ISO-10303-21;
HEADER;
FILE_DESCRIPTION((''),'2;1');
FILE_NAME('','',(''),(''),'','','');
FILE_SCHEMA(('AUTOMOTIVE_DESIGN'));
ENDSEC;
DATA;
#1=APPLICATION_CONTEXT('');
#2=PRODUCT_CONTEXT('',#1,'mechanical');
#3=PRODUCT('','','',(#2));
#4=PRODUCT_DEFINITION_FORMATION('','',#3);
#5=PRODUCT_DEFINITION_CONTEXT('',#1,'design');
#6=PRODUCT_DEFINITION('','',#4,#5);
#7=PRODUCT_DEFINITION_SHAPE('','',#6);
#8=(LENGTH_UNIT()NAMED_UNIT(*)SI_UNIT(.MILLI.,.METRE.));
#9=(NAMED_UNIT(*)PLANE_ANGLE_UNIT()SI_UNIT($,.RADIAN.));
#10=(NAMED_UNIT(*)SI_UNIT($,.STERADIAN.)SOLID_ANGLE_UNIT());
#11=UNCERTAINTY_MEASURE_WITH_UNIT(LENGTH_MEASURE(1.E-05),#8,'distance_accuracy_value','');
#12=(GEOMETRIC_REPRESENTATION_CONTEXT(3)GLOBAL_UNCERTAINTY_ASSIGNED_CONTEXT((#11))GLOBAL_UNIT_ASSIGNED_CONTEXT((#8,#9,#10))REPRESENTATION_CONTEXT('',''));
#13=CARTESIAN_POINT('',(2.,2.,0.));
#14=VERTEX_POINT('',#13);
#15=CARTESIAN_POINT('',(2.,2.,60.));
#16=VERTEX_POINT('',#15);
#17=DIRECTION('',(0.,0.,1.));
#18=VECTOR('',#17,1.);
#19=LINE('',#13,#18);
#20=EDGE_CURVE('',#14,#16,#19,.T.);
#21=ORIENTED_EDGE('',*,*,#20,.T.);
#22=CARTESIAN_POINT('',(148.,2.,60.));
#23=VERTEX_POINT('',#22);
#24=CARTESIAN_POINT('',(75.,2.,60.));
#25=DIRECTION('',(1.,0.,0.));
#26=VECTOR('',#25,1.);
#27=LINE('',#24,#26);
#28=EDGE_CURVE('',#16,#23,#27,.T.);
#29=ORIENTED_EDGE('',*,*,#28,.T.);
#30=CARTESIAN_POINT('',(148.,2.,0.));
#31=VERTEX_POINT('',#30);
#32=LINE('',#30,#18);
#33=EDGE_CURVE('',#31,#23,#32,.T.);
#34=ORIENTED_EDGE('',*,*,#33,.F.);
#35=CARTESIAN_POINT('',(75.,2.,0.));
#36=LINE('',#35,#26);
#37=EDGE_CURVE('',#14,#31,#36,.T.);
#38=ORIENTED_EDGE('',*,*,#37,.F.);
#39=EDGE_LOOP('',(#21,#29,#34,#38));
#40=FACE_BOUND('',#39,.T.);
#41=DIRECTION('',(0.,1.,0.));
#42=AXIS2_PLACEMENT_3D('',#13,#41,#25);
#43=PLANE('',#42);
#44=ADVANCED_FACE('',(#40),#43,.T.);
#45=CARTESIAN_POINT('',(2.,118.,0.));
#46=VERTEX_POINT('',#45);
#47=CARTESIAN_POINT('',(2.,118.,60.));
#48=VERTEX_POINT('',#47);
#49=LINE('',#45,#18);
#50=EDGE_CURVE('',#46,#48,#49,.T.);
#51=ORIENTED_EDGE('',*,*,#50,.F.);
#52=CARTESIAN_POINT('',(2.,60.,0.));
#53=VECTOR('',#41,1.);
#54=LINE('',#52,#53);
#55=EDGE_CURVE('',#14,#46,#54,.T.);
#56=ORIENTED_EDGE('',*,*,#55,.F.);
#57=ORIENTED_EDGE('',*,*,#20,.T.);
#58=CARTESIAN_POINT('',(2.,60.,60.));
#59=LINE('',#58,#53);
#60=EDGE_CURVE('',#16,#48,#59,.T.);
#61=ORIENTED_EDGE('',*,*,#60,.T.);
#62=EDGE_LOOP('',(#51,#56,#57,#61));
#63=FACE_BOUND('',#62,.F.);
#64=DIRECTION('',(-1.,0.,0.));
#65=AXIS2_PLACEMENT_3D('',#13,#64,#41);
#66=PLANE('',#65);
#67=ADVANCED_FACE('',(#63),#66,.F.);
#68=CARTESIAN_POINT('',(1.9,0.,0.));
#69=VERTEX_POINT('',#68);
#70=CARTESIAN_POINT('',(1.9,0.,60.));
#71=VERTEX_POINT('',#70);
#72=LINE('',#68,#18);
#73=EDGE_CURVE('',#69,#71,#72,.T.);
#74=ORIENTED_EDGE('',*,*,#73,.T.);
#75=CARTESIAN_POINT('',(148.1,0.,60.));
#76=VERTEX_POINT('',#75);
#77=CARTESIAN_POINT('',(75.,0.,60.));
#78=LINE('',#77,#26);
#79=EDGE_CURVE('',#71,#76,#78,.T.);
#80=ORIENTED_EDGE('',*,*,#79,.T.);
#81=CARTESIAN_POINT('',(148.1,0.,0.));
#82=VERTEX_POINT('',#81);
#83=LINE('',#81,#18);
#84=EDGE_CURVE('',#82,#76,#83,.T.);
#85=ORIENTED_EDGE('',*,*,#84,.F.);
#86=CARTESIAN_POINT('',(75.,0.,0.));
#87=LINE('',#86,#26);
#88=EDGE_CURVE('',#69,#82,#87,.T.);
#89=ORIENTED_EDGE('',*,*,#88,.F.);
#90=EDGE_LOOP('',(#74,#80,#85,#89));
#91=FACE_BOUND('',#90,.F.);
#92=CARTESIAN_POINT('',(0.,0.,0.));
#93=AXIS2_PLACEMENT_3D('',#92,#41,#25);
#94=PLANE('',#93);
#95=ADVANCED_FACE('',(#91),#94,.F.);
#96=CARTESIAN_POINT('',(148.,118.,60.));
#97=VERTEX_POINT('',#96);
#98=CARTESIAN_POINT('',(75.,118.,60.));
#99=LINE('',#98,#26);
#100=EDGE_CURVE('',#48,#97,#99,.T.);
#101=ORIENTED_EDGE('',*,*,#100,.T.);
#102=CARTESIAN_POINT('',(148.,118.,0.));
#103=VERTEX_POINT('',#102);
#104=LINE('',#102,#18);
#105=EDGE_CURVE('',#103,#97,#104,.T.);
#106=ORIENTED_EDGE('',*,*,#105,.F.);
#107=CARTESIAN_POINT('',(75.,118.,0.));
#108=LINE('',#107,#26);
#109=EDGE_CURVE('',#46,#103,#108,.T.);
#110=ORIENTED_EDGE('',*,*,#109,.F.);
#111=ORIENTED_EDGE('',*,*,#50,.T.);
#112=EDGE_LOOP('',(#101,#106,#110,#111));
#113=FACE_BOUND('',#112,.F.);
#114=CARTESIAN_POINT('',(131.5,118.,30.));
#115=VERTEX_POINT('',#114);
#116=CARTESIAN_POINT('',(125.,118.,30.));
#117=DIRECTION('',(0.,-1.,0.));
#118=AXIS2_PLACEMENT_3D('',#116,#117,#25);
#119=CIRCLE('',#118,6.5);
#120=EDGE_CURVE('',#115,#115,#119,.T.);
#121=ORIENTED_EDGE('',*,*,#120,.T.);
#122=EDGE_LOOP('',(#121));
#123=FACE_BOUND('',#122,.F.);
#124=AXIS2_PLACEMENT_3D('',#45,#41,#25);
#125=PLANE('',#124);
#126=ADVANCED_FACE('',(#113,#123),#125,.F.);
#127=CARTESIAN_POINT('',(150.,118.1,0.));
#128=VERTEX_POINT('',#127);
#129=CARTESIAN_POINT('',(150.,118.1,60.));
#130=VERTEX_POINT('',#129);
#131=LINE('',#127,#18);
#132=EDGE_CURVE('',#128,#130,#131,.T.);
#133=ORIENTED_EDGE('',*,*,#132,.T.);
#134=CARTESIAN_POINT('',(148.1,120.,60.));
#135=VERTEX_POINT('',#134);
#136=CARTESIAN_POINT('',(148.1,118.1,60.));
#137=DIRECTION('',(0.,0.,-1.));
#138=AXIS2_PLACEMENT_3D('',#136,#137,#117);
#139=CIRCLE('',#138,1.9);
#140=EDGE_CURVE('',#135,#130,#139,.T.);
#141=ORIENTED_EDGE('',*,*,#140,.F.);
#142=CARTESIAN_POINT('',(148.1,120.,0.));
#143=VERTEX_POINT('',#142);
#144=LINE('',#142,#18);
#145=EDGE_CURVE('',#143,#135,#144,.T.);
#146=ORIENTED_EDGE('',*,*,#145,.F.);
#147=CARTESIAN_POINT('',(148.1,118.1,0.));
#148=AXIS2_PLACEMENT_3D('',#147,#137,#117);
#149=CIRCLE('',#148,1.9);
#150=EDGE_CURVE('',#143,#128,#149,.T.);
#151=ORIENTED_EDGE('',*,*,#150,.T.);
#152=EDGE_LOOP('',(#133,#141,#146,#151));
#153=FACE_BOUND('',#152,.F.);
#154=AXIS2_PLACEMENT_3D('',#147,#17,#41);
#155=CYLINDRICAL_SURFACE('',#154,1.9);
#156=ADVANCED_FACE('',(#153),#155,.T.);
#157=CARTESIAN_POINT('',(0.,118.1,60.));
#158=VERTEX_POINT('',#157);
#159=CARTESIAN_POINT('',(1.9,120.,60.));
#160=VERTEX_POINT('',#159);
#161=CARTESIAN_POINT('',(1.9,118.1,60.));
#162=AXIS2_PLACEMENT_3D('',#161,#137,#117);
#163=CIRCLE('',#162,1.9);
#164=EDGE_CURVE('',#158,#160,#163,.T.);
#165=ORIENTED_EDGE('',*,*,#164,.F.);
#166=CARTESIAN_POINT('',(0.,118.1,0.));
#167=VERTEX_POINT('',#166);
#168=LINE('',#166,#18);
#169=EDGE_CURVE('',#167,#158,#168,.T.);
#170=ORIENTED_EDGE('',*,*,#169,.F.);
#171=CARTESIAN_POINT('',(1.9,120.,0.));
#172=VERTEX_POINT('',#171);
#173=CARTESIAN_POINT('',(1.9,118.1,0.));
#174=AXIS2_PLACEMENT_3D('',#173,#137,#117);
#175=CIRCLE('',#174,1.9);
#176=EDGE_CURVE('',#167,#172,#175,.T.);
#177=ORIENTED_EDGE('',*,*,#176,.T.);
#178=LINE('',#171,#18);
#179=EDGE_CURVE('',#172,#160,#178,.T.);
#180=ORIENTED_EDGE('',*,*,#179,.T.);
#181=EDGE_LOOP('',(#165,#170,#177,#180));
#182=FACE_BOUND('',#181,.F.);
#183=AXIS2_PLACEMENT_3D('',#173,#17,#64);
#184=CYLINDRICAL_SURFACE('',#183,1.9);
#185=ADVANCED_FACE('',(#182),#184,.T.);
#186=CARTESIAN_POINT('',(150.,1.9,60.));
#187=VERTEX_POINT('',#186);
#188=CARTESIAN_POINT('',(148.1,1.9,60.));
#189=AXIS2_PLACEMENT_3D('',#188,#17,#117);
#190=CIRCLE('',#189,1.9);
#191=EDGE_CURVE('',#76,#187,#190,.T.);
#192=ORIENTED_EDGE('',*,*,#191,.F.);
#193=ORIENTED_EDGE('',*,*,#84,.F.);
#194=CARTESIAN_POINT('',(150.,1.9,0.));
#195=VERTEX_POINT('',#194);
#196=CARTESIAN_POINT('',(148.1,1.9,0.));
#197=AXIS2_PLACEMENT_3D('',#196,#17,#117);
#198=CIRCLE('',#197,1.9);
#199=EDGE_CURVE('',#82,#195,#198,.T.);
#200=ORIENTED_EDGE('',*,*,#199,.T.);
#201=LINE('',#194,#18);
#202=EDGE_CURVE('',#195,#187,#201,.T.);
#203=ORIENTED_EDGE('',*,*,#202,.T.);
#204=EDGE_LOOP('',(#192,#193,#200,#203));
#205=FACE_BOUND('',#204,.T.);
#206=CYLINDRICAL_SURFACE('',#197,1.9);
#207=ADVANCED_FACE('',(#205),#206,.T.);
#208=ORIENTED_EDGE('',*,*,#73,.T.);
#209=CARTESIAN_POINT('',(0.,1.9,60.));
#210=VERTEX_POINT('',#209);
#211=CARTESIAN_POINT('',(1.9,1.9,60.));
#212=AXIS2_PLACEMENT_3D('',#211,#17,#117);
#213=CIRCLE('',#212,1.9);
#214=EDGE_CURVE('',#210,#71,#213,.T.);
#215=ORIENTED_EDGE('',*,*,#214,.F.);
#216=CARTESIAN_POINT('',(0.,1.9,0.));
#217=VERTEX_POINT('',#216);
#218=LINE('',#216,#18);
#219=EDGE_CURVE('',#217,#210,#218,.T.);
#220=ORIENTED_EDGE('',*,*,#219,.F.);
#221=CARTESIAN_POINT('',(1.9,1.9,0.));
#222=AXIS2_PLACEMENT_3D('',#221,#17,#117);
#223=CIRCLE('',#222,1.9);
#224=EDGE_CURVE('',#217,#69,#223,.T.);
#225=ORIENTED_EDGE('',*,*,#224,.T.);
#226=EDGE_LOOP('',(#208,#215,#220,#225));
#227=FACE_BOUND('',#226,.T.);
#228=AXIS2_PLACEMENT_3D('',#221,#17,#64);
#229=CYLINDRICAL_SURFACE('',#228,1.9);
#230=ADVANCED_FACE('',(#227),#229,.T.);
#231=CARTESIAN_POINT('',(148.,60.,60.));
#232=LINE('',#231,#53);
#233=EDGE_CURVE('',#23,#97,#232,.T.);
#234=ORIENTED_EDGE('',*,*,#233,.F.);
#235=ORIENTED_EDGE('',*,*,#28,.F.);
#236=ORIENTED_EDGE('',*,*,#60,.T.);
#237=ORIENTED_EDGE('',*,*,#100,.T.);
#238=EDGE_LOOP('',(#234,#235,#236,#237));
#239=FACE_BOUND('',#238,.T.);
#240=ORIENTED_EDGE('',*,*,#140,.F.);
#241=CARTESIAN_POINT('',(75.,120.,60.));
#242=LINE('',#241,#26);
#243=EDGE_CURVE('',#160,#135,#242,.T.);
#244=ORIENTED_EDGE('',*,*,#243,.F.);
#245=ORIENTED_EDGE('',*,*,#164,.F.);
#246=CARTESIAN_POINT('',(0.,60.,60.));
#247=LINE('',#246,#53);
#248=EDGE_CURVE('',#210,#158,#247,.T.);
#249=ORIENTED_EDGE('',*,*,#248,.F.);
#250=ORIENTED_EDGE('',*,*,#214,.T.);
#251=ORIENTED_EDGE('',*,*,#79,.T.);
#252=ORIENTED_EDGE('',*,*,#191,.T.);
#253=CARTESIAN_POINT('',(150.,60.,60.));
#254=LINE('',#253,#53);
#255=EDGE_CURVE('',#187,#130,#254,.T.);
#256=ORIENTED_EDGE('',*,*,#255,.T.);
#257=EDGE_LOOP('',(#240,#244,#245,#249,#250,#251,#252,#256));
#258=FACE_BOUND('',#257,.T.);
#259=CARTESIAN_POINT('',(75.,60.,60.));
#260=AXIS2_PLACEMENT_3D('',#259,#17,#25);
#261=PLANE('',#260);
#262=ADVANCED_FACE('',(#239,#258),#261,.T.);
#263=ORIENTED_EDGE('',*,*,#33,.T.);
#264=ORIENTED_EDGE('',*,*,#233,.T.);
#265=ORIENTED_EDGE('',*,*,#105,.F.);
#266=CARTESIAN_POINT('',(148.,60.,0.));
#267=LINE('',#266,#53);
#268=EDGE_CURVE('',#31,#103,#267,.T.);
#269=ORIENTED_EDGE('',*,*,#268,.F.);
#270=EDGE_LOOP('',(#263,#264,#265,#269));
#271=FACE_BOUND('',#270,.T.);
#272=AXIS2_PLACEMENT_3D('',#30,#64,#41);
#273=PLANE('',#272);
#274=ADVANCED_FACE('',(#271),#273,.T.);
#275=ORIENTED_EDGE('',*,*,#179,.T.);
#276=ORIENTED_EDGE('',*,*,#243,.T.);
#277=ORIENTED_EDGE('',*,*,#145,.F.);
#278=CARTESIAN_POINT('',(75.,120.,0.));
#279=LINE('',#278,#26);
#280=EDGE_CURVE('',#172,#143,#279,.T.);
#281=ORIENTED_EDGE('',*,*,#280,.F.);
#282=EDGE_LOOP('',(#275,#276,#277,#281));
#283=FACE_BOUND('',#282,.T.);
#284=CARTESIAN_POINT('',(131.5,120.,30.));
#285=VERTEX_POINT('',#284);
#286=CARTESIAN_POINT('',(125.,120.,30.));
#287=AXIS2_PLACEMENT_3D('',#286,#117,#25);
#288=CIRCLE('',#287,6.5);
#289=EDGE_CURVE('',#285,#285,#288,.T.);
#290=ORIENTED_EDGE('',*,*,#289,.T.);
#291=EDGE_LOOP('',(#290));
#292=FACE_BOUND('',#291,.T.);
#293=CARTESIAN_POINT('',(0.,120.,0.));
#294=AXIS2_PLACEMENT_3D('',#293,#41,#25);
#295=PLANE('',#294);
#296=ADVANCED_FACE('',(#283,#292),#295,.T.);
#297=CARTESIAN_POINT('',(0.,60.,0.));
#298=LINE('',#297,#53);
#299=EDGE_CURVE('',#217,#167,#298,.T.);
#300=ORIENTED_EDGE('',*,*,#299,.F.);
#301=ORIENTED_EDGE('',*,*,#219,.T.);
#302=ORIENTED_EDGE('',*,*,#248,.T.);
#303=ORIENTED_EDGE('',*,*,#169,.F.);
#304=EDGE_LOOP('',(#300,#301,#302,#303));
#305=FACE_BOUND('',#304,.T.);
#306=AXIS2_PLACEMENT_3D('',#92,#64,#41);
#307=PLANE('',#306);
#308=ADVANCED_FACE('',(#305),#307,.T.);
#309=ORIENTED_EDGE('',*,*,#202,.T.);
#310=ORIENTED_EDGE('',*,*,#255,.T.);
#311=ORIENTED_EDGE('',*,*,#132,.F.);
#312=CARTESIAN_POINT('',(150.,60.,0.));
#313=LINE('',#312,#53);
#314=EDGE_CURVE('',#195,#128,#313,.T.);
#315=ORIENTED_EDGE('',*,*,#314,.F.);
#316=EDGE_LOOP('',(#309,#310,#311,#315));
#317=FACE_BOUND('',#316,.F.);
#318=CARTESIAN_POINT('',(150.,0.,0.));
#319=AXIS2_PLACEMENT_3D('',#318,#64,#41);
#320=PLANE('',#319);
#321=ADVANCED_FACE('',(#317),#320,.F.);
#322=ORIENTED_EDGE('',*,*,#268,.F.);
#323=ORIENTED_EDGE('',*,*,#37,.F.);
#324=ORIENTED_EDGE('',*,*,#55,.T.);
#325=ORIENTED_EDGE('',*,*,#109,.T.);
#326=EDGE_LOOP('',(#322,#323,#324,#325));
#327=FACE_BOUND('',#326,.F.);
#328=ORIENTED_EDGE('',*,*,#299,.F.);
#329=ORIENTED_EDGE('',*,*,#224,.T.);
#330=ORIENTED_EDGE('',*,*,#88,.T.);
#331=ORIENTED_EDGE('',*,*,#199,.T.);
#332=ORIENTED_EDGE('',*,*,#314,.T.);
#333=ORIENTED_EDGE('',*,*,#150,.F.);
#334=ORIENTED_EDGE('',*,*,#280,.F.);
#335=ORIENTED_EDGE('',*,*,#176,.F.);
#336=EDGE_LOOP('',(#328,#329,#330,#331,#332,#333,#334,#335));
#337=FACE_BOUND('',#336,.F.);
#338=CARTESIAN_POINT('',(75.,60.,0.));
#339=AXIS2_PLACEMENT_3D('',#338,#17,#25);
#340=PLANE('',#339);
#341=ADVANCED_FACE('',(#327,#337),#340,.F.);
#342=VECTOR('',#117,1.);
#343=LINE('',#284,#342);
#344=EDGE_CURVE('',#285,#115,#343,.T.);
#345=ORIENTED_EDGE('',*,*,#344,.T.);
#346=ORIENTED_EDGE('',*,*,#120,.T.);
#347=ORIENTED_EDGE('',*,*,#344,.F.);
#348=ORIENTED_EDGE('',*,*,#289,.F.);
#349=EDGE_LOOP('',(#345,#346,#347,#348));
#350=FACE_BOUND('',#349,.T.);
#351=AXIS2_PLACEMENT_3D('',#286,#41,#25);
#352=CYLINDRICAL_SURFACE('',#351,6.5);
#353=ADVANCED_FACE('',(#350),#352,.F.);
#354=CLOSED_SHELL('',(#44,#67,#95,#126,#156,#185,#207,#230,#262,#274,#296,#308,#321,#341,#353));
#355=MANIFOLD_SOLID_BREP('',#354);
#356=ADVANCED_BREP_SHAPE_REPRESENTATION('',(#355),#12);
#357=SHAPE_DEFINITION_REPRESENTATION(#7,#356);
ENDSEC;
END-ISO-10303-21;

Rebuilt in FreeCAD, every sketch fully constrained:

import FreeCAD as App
import Part
import Sketcher
Q = App.Units.Quantity


def edges_at(feature, points):
    """Names of the edges that pass closest to the given points."""
    edges = feature.Shape.Edges
    near = lambda p: min(range(len(edges)), key=lambda i: edges[i].distToShape(Part.Vertex(*p))[0])
    return sorted({f"Edge{near(p) + 1}" for p in points})

doc = App.newDocument("Part")
params = doc.addObject("Spreadsheet::Sheet", "Params")
for row, (alias, value) in enumerate([
    ("sketch1_width", "150 mm"),
    ("sketch1_height", "120 mm"),
    ("pad1_length", "60 mm"),
    ("sketch2_width", "146 mm"),
    ("sketch2_height", "116 mm"),
    ("pocket1_length", "60 mm"),
    ("sketch3_diameter", "13 mm"),
    ("pocket2_length", "2 mm"),
    ("fillet_radius", "1.9 mm"),
], start=1):
    params.set(f"A{row}", alias)
    params.set(f"B{row}", "=" + value)
    params.setAlias(f"B{row}", alias)

body = doc.addObject("PartDesign::Body", "Body")

# Sketch on XY plane
sketch1 = body.newObject("Sketcher::SketchObject", "Sketch")
sketch1.AttachmentSupport = (doc.getObject("XY_Plane"), [""])
sketch1.MapMode = "FlatFace"
sketch1.addGeometry(Part.LineSegment(App.Vector(0, 120, 0), App.Vector(0, 0, 0)), False)
sketch1.addGeometry(Part.LineSegment(App.Vector(0, 0, 0), App.Vector(150, 0, 0)), False)
sketch1.addGeometry(Part.LineSegment(App.Vector(150, 0, 0), App.Vector(150, 120, 0)), False)
sketch1.addGeometry(Part.LineSegment(App.Vector(150, 120, 0), App.Vector(0, 120, 0)), False)
sketch1.addConstraint(Sketcher.Constraint("Coincident", 0, 2, 1, 1))
sketch1.addConstraint(Sketcher.Constraint("Coincident", 1, 2, 2, 1))
sketch1.addConstraint(Sketcher.Constraint("Coincident", 2, 2, 3, 1))
sketch1.addConstraint(Sketcher.Constraint("Coincident", 3, 2, 0, 1))
sketch1.addConstraint(Sketcher.Constraint("Vertical", 0))
sketch1.addConstraint(Sketcher.Constraint("Horizontal", 1))
sketch1.addConstraint(Sketcher.Constraint("Vertical", 2))
sketch1.addConstraint(Sketcher.Constraint("Horizontal", 3))
sketch1.addConstraint(Sketcher.Constraint("Coincident", 0, 2, -1, 1))
sketch1.addConstraint(Sketcher.Constraint("DistanceX", 1, 1, 1, 2, Q("150 mm")))
sketch1.addConstraint(Sketcher.Constraint("DistanceY", 0, 2, 0, 1, Q("120 mm")))
sketch1.setExpression("Constraints[9]", "Params.sketch1_width")
sketch1.setExpression("Constraints[10]", "Params.sketch1_height")
pad1 = body.newObject("PartDesign::Pad", "Pad")
pad1.Profile = sketch1
pad1.setExpression("Length", "Params.pad1_length")

# Sketch on XY plane
sketch2 = body.newObject("Sketcher::SketchObject", "Sketch001")
sketch2.AttachmentSupport = (doc.getObject("XY_Plane"), [""])
sketch2.MapMode = "FlatFace"
sketch2.addGeometry(Part.LineSegment(App.Vector(2, 118, 0), App.Vector(2, 2, 0)), False)
sketch2.addGeometry(Part.LineSegment(App.Vector(2, 2, 0), App.Vector(148, 2, 0)), False)
sketch2.addGeometry(Part.LineSegment(App.Vector(148, 2, 0), App.Vector(148, 118, 0)), False)
sketch2.addGeometry(Part.LineSegment(App.Vector(148, 118, 0), App.Vector(2, 118, 0)), False)
sketch2.addConstraint(Sketcher.Constraint("Coincident", 0, 2, 1, 1))
sketch2.addConstraint(Sketcher.Constraint("Coincident", 1, 2, 2, 1))
sketch2.addConstraint(Sketcher.Constraint("Coincident", 2, 2, 3, 1))
sketch2.addConstraint(Sketcher.Constraint("Coincident", 3, 2, 0, 1))
sketch2.addConstraint(Sketcher.Constraint("Vertical", 0))
sketch2.addConstraint(Sketcher.Constraint("Horizontal", 1))
sketch2.addConstraint(Sketcher.Constraint("Vertical", 2))
sketch2.addConstraint(Sketcher.Constraint("Horizontal", 3))
sketch2.addConstraint(Sketcher.Constraint("DistanceX", 1, 1, 1, 2, Q("146 mm")))
sketch2.addConstraint(Sketcher.Constraint("DistanceY", 0, 2, 0, 1, Q("116 mm")))
sketch2.addConstraint(Sketcher.Constraint("DistanceX", -1, 1, 0, 2, Q("2 mm")))
sketch2.addConstraint(Sketcher.Constraint("DistanceY", -1, 1, 0, 2, Q("2 mm")))
sketch2.setExpression("Constraints[8]", "Params.sketch2_width")
sketch2.setExpression("Constraints[9]", "Params.sketch2_height")
pocket1 = body.newObject("PartDesign::Pocket", "Pocket")
pocket1.Profile = sketch2
pocket1.setExpression("Length", "Params.pocket1_length")
pocket1.Reversed = True

# Sketch on XZ plane
sketch3 = body.newObject("Sketcher::SketchObject", "Sketch002")
sketch3.AttachmentSupport = (doc.getObject("XZ_Plane"), [""])
sketch3.MapMode = "FlatFace"
sketch3.AttachmentOffset = App.Placement(App.Vector(0, 0, -120), App.Rotation())
sketch3.addGeometry(Part.Circle(App.Vector(125, 30, 0), App.Vector(0, 0, 1), 6), False)
sketch3.addConstraint(Sketcher.Constraint("Diameter", 0, Q("13 mm")))
sketch3.addConstraint(Sketcher.Constraint("DistanceX", -1, 1, 0, 3, Q("125 mm")))
sketch3.addConstraint(Sketcher.Constraint("DistanceY", -1, 1, 0, 3, Q("30 mm")))
sketch3.setExpression("Constraints[0]", "Params.sketch3_diameter")
pocket2 = body.newObject("PartDesign::Pocket", "Pocket001")
pocket2.Profile = sketch3
pocket2.setExpression("Length", "Params.pocket2_length")
pocket2.Reversed = True
doc.recompute()

fillet = body.newObject("PartDesign::Fillet", "Fillet")
fillet.Base = (pocket2, edges_at(pocket2, [
    (150, 0, 30),
    (0, 0, 30),
    (0, 120, 30),
    (150, 120, 30),
]))
fillet.setExpression("Radius", "Params.fillet_radius")

doc.recompute()
